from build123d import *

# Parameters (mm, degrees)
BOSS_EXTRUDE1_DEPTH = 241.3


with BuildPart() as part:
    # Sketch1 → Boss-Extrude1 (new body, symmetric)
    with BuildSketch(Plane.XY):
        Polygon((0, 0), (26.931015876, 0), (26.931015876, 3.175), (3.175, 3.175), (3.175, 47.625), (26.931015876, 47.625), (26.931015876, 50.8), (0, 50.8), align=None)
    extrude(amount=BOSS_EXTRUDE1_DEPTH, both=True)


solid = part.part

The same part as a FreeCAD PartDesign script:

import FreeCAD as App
import Part
import Sketcher

V = App.Vector
Q = App.Units.Quantity


def add_polygon(sketch, points):
    """Adds a closed chain of lines whose ends are joined by coincident constraints."""
    first, n = sketch.GeometryCount, len(points)
    for a, b in zip(points, points[1:] + points[:1]):
        sketch.addGeometry(Part.LineSegment(App.Vector(*a, 0), App.Vector(*b, 0)), False)
    for i in range(n):
        sketch.addConstraint(Sketcher.Constraint("Coincident", first + i, 2, first + (i + 1) % n, 1))

doc = App.newDocument("Part")
params = doc.addObject("Spreadsheet::Sheet", "Params")
for row, (alias, value) in enumerate([
    ("sketch1_height", "2 in"),
    ("sketch1_height2", "1.75 in"),
    ("pad1_length", "19 in"),
], start=1):
    params.set(f"A{row}", alias)
    params.set(f"B{row}", "=" + value)
    params.setAlias(f"B{row}", alias)

body = doc.addObject("PartDesign::Body", "Body")

sketch1 = body.newObject("Sketcher::SketchObject", "Sketch")
sketch1.AttachmentSupport = (doc.getObject("XY_Plane"), [""])
sketch1.MapMode = "FlatFace"
add_polygon(sketch1, [(0, 0), (26.9, 0), (26.9, 3.2), (3.2, 3.2), (3.2, 47.6), (26.9, 47.6), (26.9, 50.8), (0, 50.8)])
sketch1.addConstraint([
    Sketcher.Constraint("Horizontal", 0),
    Sketcher.Constraint("Vertical", 1),
    Sketcher.Constraint("Horizontal", 2),
    Sketcher.Constraint("Vertical", 3),
    Sketcher.Constraint("Horizontal", 4),
    Sketcher.Constraint("Vertical", 5),
    Sketcher.Constraint("Horizontal", 6),
    Sketcher.Constraint("Vertical", 7),
    Sketcher.Constraint("Coincident", 7, 2, -1, 1),
    Sketcher.Constraint("Vertical", 1, 2, 4, 2),
    Sketcher.Constraint("Equal", 1, 5),
    Sketcher.Constraint("DistanceY", 7, 2, 7, 1, Q("2 in")),
    Sketcher.Constraint("DistanceY", 3, 1, 3, 2, Q("1.75 in")),
    Sketcher.Constraint("DistanceX", -1, 1, 2, 2, Q("0.125 in")),
    Sketcher.Constraint("DistanceX", 0, 1, 0, 2, 26.931016),
])
sketch1.setExpression("Constraints[19]", "Params.sketch1_height")
sketch1.setExpression("Constraints[20]", "Params.sketch1_height2")
pad1 = body.newObject("PartDesign::Pad", "Pad")
pad1.Profile = sketch1
pad1.setExpression("Length", "Params.pad1_length")
pad1.Midplane = True

doc.recompute()
